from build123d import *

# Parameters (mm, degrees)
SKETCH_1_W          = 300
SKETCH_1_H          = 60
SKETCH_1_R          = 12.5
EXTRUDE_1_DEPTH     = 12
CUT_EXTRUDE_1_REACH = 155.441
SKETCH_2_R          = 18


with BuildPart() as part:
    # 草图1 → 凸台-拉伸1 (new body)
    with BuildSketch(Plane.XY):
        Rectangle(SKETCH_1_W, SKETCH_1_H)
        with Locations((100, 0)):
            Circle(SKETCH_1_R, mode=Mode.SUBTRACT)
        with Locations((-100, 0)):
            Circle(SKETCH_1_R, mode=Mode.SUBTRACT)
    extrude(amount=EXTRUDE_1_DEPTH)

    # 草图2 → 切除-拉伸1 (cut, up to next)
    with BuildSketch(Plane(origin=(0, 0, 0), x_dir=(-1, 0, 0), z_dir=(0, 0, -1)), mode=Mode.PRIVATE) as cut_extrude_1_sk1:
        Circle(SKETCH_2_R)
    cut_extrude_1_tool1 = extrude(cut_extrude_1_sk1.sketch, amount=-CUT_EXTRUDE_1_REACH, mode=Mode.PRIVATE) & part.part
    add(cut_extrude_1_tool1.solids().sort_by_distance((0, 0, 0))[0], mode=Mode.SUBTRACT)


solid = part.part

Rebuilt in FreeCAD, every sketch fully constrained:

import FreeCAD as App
import Part
import Sketcher
from FreeCAD import Vector


def add_polygon(sketch, points):
    """Adds a closed chain of lines whose ends are joined by coincident constraints."""
    first, n = sketch.GeometryCount, len(points)
    for a, b in zip(points, points[1:] + points[:1]):
        sketch.addGeometry(Part.LineSegment(App.Vector(*a, 0), App.Vector(*b, 0)), False)
    for i in range(n):
        sketch.addConstraint(Sketcher.Constraint("Coincident", first + i, 2, first + (i + 1) % n, 1))

doc = App.newDocument("Part")
body = doc.addObject("PartDesign::Body", "Body")

# Sketch on XY plane
sketch1 = body.newObject("Sketcher::SketchObject", "Sketch")
sketch1.AttachmentSupport = (doc.getObject("XY_Plane"), [""])
sketch1.MapMode = "FlatFace"
add_polygon(sketch1, [(-150, 30), (-150, -30), (150, -30), (150, 30)])  # lines 0-3
sketch1.addGeometry(Part.Circle(Vector(-100, 0, 0), Vector(0, 0, 1), 12), False)  # 4
sketch1.addGeometry(Part.Circle(Vector(100, 0, 0), Vector(0, 0, 1), 12), False)  # 5
sketch1.addConstraint(Sketcher.Constraint("Vertical", 0))
sketch1.addConstraint(Sketcher.Constraint("Horizontal", 1))
sketch1.addConstraint(Sketcher.Constraint("Vertical", 2))
sketch1.addConstraint(Sketcher.Constraint("Horizontal", 3))
sketch1.addConstraint(Sketcher.Constraint("Equal", 4, 5))
sketch1.addConstraint(Sketcher.Constraint("Symmetric", 4, 3, 5, 3, -1, 1))
sketch1.addConstraint(Sketcher.Constraint("Symmetric", 0, 2, 2, 2, -1, 1))
sketch1.addConstraint(Sketcher.Constraint("PointOnObject", 4, 3, -1))
sketch1.addConstraint(Sketcher.Constraint("Diameter", 4, 25.0))
sketch1.addConstraint(Sketcher.Constraint("DistanceX", 1, 1, 1, 2, 300.0))
sketch1.addConstraint(Sketcher.Constraint("DistanceY", 0, 2, 0, 1, 60.0))
sketch1.addConstraint(Sketcher.Constraint("DistanceX", 4, 3, -1, 1, 100.0))
pad1 = body.newObject("PartDesign::Pad", "Pad")
pad1.Profile = sketch1
pad1.Length = 12

# Sketch on XY plane
sketch2 = body.newObject("Sketcher::SketchObject", "Sketch001")
sketch2.AttachmentSupport = (doc.getObject("XY_Plane"), [""])
sketch2.MapMode = "FlatFace"
sketch2.addGeometry(Part.Circle(Vector(0, 0, 0), Vector(0, 0, 1), 18), False)
sketch2.addConstraint(Sketcher.Constraint("Coincident", 0, 3, -1, 1))
sketch2.addConstraint(Sketcher.Constraint("Diameter", 0, 36.0))
pocket1 = body.newObject("PartDesign::Pocket", "Pocket")
pocket1.Profile = sketch2
pocket1.Type = "UpToFirst"
pocket1.Reversed = True

doc.recompute()
